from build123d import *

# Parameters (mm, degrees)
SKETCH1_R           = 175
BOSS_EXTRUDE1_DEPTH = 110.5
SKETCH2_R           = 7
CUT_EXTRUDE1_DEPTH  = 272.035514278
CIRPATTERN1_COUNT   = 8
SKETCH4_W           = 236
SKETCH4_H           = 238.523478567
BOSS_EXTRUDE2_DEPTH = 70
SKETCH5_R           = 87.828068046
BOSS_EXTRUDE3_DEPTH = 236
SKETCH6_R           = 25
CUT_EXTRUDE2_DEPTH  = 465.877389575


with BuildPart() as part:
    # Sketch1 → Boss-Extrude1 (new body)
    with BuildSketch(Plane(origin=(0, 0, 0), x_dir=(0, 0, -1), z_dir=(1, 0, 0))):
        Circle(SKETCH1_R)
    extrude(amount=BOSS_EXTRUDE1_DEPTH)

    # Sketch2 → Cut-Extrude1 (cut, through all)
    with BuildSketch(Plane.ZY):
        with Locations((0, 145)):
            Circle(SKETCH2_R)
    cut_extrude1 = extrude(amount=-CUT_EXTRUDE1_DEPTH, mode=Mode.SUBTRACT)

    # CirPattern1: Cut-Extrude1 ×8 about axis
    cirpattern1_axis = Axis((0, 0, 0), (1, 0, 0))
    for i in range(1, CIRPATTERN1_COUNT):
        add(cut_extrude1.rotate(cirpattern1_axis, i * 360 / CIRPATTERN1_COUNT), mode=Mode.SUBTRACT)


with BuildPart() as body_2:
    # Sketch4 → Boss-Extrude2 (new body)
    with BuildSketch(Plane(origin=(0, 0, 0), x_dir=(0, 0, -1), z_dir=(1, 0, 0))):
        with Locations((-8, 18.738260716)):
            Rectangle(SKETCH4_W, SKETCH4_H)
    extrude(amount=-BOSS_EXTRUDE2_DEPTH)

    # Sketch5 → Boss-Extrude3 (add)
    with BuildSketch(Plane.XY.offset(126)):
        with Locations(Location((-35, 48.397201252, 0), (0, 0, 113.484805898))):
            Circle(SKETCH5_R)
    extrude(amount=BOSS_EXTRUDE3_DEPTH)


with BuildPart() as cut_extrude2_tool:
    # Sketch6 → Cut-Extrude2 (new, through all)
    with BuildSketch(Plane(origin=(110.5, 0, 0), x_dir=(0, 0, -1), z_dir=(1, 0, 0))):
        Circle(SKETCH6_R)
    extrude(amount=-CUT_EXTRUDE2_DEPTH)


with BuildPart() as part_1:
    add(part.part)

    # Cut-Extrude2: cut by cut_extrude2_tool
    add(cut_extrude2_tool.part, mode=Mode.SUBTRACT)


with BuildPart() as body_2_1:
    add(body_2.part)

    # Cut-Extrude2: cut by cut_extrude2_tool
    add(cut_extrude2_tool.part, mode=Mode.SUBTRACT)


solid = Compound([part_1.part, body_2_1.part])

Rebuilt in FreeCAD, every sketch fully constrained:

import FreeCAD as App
import Part
import Sketcher

V = App.Vector
Q = App.Units.Quantity

doc = App.newDocument("Part")
params = doc.addObject("Spreadsheet::Sheet", "Params")
for row, (alias, value) in enumerate([
    ("sketch1_diameter", "350 mm"),
    ("pad1_length", "110.5 mm"),
    ("sketch2_diameter", "14 mm"),
    ("sketch3_height", "236 mm"),
    ("pad2_length", "70 mm"),
    ("pad3_length", "236 mm"),
    ("sketch5_diameter", "50 mm"),
    ("pad4_length", "465.87739 mm"),
], start=1):
    params.set(f"A{row}", alias)
    params.set(f"B{row}", "=" + value)
    params.setAlias(f"B{row}", alias)

body = doc.addObject("PartDesign::Body", "Body")

# Sketch on YZ plane
sketch1 = body.newObject("Sketcher::SketchObject", "Sketch")
sketch1.AttachmentSupport = (doc.getObject("YZ_Plane"), [""])
sketch1.MapMode = "FlatFace"
sketch1.addGeometry(Part.Circle(V(0, 0, 0), V(0, 0, 1), 175), False)
sketch1.addConstraint(Sketcher.Constraint("Coincident", 0, 3, -1, 1))
sketch1.addConstraint(Sketcher.Constraint("Diameter", 0, Q("350 mm")))
sketch1.setExpression("Constraints[1]", "Params.sketch1_diameter")
pad1 = body.newObject("PartDesign::Pad", "Pad")
pad1.Profile = sketch1
pad1.setExpression("Length", "Params.pad1_length")

# Sketch on YZ plane
sketch2 = body.newObject("Sketcher::SketchObject", "Sketch001")
sketch2.AttachmentSupport = (doc.getObject("YZ_Plane"), [""])
sketch2.MapMode = "FlatFace"
sketch2.addGeometry(Part.Circle(V(145, 0, 0), V(0, 0, 1), 7), False)
sketch2.addConstraint(Sketcher.Constraint("PointOnObject", 0, 3, -1))
sketch2.addConstraint(Sketcher.Constraint("Diameter", 0, Q("14 mm")))
sketch2.addConstraint(Sketcher.Constraint("DistanceX", -1, 1, 0, 3, Q("145 mm")))
sketch2.setExpression("Constraints[1]", "Params.sketch2_diameter")
pocket1 = body.newObject("PartDesign::Pocket", "Pocket")
pocket1.Profile = sketch2
pocket1.Type = "ThroughAll"
pocket1.Reversed = True
doc.recompute()

polarpattern = body.newObject("PartDesign::PolarPattern", "PolarPattern")
polarpattern.Originals = [pocket1]
polarpattern.Axis = (doc.getObject("X_Axis"), [""])
polarpattern.Angle = 360
polarpattern.Occurrences = 8
body.Tip = polarpattern
body2 = doc.addObject("PartDesign::Body", "Body001")

# Sketch on YZ plane
sketch3 = body2.newObject("Sketcher::SketchObject", "Sketch002")
sketch3.AttachmentSupport = (doc.getObject("YZ_Plane001"), [""])
sketch3.MapMode = "FlatFace"
sketch3.addGeometry(Part.LineSegment(V(138, 126, 0), V(-100.523479, 126, 0)), False)
sketch3.addGeometry(Part.LineSegment(V(-100.523479, 126, 0), V(-100.523479, -110, 0)), False)
sketch3.addGeometry(Part.LineSegment(V(-100.523479, -110, 0), V(138, -110, 0)), False)
sketch3.addGeometry(Part.LineSegment(V(138, -110, 0), V(138, 126, 0)), False)
sketch3.addConstraint(Sketcher.Constraint("Coincident", 0, 2, 1, 1))
sketch3.addConstraint(Sketcher.Constraint("Coincident", 1, 2, 2, 1))
sketch3.addConstraint(Sketcher.Constraint("Coincident", 2, 2, 3, 1))
sketch3.addConstraint(Sketcher.Constraint("Coincident", 3, 2, 0, 1))
sketch3.addConstraint(Sketcher.Constraint("Horizontal", 0))
sketch3.addConstraint(Sketcher.Constraint("Vertical", 1))
sketch3.addConstraint(Sketcher.Constraint("Horizontal", 2))
sketch3.addConstraint(Sketcher.Constraint("Vertical", 3))
sketch3.addConstraint(Sketcher.Constraint("DistanceY", 1, 2, 1, 1, Q("236 mm")))
sketch3.addConstraint(Sketcher.Constraint("DistanceY", -1, 1, 0, 2, Q("126 mm")))
sketch3.addConstraint(Sketcher.Constraint("DistanceX", -1, 1, 2, 2, Q("138 mm")))
sketch3.addConstraint(Sketcher.Constraint("DistanceX", 0, 2, 0, 1, Q("238.523479 mm")))
sketch3.setExpression("Constraints[8]", "Params.sketch3_height")
pad2 = body2.newObject("PartDesign::Pad", "Pad001")
pad2.Profile = sketch3
pad2.setExpression("Length", "Params.pad2_length")
pad2.Reversed = True

# Sketch on XY plane
sketch4 = body2.newObject("Sketcher::SketchObject", "Sketch003")
sketch4.AttachmentSupport = (doc.getObject("XY_Plane001"), [""])
sketch4.MapMode = "FlatFace"
sketch4.AttachmentOffset = App.Placement(V(0, 0, 126), App.Rotation())
sketch4.addGeometry(Part.Circle(V(-35, 48.397201, 0), V(0, 0, 1), 87.828068), False)
sketch4.addConstraint(Sketcher.Constraint("DistanceX", 0, 3, -1, 1, Q("35 mm")))
sketch4.addConstraint(Sketcher.Constraint("Diameter", 0, Q("175.656136 mm")))
sketch4.addConstraint(Sketcher.Constraint("DistanceY", -1, 1, 0, 3, Q("48.397201 mm")))
pad3 = body2.newObject("PartDesign::Pad", "Pad002")
pad3.Profile = sketch4
pad3.setExpression("Length", "Params.pad3_length")
body3 = doc.addObject("PartDesign::Body", "Body002")

# Sketch on YZ plane
sketch5 = body3.newObject("Sketcher::SketchObject", "Sketch004")
sketch5.AttachmentSupport = (doc.getObject("YZ_Plane002"), [""])
sketch5.MapMode = "FlatFace"
sketch5.AttachmentOffset = App.Placement(V(0, 0, 110.5), App.Rotation())
sketch5.addGeometry(Part.Circle(V(0, 0, 0), V(0, 0, 1), 25), False)
sketch5.addConstraint(Sketcher.Constraint("Coincident", 0, 3, -1, 1))
sketch5.addConstraint(Sketcher.Constraint("Diameter", 0, Q("50 mm")))
sketch5.setExpression("Constraints[1]", "Params.sketch5_diameter")
pad4 = body3.newObject("PartDesign::Pad", "Pad003")
pad4.Profile = sketch5
pad4.setExpression("Length", "Params.pad4_length")
pad4.Reversed = True
doc.recompute()

body4 = doc.addObject("PartDesign::Body", "Body003")
body4.BaseFeature = body3
boolean = body.newObject("PartDesign::Boolean", "Boolean")
boolean.Type = "Cut"
boolean.addObjects([body4])
doc.recompute()

boolean2 = body2.newObject("PartDesign::Boolean", "Boolean001")
boolean2.Type = "Cut"
boolean2.addObjects([body3])

doc.recompute()
